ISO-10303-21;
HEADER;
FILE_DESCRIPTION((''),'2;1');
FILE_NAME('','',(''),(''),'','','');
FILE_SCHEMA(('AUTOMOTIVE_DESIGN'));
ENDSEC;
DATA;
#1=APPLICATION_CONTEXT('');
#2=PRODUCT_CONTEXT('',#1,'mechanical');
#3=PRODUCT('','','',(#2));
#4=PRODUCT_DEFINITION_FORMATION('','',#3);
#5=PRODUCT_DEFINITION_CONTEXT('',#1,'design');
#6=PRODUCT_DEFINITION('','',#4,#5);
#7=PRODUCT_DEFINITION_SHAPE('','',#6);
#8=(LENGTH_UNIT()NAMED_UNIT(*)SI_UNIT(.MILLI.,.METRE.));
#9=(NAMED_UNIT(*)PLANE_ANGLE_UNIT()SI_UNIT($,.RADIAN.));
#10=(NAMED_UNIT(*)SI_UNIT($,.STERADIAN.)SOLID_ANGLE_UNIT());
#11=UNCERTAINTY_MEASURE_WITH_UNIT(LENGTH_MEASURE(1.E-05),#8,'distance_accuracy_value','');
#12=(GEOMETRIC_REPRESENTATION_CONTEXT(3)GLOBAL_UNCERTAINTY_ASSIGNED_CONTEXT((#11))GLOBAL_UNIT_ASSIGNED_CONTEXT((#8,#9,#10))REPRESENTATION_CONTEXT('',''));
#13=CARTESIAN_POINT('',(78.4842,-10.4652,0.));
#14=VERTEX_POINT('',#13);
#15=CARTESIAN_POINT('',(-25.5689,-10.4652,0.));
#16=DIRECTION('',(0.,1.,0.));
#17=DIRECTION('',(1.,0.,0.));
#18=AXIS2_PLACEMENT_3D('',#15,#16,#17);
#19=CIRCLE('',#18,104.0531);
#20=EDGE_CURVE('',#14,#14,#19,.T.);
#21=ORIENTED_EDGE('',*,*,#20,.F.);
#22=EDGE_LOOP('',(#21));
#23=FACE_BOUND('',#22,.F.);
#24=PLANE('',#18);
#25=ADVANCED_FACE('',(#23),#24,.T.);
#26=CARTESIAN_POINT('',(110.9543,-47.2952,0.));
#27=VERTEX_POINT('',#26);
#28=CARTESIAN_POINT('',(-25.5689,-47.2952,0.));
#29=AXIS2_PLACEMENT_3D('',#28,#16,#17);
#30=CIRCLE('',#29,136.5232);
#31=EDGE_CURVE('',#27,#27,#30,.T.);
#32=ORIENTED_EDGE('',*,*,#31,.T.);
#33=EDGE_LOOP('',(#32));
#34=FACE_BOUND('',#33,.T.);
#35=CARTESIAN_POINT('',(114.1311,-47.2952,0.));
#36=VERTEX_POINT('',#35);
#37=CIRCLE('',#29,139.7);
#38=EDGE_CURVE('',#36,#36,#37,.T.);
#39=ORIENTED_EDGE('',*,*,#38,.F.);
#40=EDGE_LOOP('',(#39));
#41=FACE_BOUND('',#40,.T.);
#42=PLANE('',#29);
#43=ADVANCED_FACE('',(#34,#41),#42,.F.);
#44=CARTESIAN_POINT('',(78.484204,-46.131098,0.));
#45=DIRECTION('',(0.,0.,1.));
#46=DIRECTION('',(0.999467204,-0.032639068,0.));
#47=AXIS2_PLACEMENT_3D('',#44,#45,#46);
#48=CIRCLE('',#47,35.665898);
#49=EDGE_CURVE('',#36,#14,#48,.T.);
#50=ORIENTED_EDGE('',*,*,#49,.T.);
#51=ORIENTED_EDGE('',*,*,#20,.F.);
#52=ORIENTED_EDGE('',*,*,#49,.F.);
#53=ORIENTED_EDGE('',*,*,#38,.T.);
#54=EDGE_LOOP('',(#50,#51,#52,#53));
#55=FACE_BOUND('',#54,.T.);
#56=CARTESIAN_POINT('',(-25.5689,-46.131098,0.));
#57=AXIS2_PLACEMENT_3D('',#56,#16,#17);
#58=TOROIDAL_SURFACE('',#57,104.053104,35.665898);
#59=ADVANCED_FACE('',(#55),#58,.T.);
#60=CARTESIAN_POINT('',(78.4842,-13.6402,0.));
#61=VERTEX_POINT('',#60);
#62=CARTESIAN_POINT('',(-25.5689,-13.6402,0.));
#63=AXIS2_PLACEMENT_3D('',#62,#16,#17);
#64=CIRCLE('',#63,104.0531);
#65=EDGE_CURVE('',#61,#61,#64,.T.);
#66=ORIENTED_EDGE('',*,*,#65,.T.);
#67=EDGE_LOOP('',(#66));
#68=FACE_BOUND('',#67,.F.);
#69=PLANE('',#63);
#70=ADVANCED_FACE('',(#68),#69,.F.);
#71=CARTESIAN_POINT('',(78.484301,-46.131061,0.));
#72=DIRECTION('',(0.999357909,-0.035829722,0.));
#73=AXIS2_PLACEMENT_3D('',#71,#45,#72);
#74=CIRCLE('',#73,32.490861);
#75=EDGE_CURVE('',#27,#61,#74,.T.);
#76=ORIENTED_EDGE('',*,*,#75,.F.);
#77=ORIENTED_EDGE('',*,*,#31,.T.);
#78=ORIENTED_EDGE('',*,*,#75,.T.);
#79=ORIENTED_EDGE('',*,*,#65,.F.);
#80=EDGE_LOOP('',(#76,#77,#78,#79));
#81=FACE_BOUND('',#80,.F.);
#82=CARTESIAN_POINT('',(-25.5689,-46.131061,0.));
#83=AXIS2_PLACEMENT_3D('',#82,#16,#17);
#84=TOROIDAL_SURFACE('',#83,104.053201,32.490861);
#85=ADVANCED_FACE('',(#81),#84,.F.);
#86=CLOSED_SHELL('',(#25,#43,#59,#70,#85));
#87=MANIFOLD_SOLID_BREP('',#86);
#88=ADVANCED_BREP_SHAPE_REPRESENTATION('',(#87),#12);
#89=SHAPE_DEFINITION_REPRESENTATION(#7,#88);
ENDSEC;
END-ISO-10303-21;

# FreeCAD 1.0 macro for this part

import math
import FreeCAD as App
import Part
import Sketcher
Q = App.Units.Quantity

doc = App.newDocument("Part")
params = doc.addObject("Spreadsheet::Sheet", "Params")
for row, (alias, value) in enumerate([
    ("sketch1_height", "1.45 in"),
    ("sketch1_height2", "0.125 in"),
    ("revolution_angle", "360 deg"),
], start=1):
    params.set(f"A{row}", alias)
    params.set(f"B{row}", "=" + value)
    params.setAlias(f"B{row}", alias)

body = doc.addObject("PartDesign::Body", "Body")

sketch1 = body.newObject("Sketcher::SketchObject", "Sketch")
sketch1.AttachmentSupport = (doc.getObject("XY_Plane"), [""])
sketch1.MapMode = "FlatFace"
sketch1.addGeometry([
    Part.LineSegment(App.Vector(78.4842, -10.4652, 0), App.Vector(-25.5689, -10.4652, 0)),
    Part.LineSegment(App.Vector(-25.5689, -10.4652, 0), App.Vector(-25.5689, -13.6402, 0)),
    Part.LineSegment(App.Vector(-25.5689, -13.6402, 0), App.Vector(78.4842, -13.6402, 0)),
    Part.ArcOfCircle(Part.Circle(App.Vector(78.4842, -46.1311, 0), App.Vector(0, 0, 1), 32.490961), math.radians(-2.053257), math.radians(90)),
    Part.LineSegment(App.Vector(110.9543, -47.2952, 0), App.Vector(114.1311, -47.2952, 0)),
    Part.ArcOfCircle(Part.Circle(App.Vector(78.4842, -46.1311, 0), App.Vector(0, 0, 1), 35.665903), math.radians(-1.87041), math.radians(90)),
], False)
sketch1.addGeometry(Part.LineSegment(App.Vector(-25.5689, -47.2952, 0), App.Vector(-25.5689, -10.4652, 0)), True)
sketch1.addConstraint([
    Sketcher.Constraint("Coincident", 0, 2, 1, 1),
    Sketcher.Constraint("Coincident", 1, 2, 2, 1),
    Sketcher.Constraint("Tangent", 2, 2, 3, 2),
    Sketcher.Constraint("Coincident", 3, 1, 4, 1),
    Sketcher.Constraint("Coincident", 4, 2, 5, 1),
    Sketcher.Constraint("Tangent", 5, 2, 0, 1),
    Sketcher.Constraint("Horizontal", 0),
    Sketcher.Constraint("Vertical", 1),
    Sketcher.Constraint("Horizontal", 2),
    Sketcher.Constraint("Horizontal", 4),
    Sketcher.Constraint("Vertical", 6),
    Sketcher.Constraint("Coincident", 5, 3, 3, 3),
    Sketcher.Constraint("Coincident", 6, 2, 0, 2),
    Sketcher.Constraint("Horizontal", 4, 2, 6, 1),
    Sketcher.Constraint("DistanceY", 6, 1, 6, 2, Q("1.45 in")),
    Sketcher.Constraint("DistanceX", 1, 2, 4, 2, Q("5.5 in")),
    Sketcher.Constraint("DistanceY", 1, 2, 1, 1, Q("0.125 in")),
    Sketcher.Constraint("Radius", 3, 32.491),
    Sketcher.Constraint("DistanceX", -1, 1, 3, 3, 78.4842),
    Sketcher.Constraint("DistanceY", 3, 3, -1, 1, 46.131),
])
sketch1.setExpression("Constraints[14]", "Params.sketch1_height")
sketch1.setExpression("Constraints[16]", "Params.sketch1_height2")
revolution = body.newObject("PartDesign::Revolution", "Revolution")
revolution.Profile = sketch1
revolution.ReferenceAxis = (sketch1, ["Axis0"])
revolution.setExpression("Angle", "Params.revolution_angle")

doc.recompute()
